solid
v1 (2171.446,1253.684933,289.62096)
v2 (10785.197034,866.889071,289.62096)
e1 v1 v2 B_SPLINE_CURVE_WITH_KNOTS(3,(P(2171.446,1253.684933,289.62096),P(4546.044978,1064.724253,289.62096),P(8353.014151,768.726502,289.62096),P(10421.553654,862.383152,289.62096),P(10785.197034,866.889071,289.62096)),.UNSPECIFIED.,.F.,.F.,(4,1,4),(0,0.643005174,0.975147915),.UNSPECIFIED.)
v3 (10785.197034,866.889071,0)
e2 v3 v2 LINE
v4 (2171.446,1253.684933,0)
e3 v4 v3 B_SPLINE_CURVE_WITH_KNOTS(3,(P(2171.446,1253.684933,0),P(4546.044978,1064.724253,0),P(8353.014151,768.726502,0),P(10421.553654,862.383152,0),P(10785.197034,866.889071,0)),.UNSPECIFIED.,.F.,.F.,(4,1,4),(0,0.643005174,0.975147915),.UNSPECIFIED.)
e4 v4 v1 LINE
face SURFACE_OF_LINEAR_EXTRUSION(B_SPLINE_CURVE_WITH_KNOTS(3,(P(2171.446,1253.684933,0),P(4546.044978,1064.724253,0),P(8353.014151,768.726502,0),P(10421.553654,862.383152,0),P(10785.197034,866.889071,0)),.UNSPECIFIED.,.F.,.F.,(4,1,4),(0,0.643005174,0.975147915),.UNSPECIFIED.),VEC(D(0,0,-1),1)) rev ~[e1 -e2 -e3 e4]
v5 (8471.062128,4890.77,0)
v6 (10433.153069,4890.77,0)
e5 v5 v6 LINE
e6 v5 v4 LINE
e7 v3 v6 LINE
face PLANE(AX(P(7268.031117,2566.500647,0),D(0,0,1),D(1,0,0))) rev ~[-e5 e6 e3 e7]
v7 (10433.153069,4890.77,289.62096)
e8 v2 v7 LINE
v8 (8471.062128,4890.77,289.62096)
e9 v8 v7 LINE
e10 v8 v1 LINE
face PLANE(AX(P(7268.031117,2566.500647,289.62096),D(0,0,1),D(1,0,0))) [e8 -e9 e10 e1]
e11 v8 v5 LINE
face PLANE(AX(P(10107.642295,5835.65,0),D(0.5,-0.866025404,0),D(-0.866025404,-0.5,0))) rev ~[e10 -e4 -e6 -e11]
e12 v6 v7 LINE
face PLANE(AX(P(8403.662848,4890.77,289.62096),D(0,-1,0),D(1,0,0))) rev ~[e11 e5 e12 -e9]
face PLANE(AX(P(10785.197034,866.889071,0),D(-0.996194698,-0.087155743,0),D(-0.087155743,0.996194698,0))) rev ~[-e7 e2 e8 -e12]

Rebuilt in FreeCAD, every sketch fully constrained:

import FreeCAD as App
import Part
import Sketcher

V = App.Vector
Q = App.Units.Quantity

doc = App.newDocument("Part")
body = doc.addObject("PartDesign::Body", "Body")

# Sketch on XY plane
sketch1 = body.newObject("Sketcher::SketchObject", "Sketch")
sketch1.AttachmentSupport = (doc.getObject("XY_Plane"), [""])
sketch1.MapMode = "FlatFace"
sketch1.addGeometry(Part.LineSegment(V(10107.642295, 5835.65, 0), V(2171.446, 1253.684933, 0)), False)
sketch1.addGeometry(Part.BSplineCurve([V(2171.446, 1253.684933, 0), V(4546.044978, 1064.724253, 0), V(8353.014151, 768.726502, 0), V(10421.553654, 862.383152, 0), V(10785.197034, 866.889071, 0)], [4, 1, 4], [0, 0.643005174, 0.975147915], False, 3, [1, 1, 1, 1, 1], False), False)
sketch1.addGeometry(Part.LineSegment(V(10785.197034, 866.889071, 0), V(10350.486781, 5835.65, 0)), False)
sketch1.addGeometry(Part.LineSegment(V(10350.486781, 5835.65, 0), V(10107.642295, 5835.65, 0)), False)
sketch1.addConstraint(Sketcher.Constraint("Block", 1))
sketch1.addConstraint(Sketcher.Constraint("Coincident", 0, 2, 1, 1))
sketch1.addConstraint(Sketcher.Constraint("Coincident", 1, 2, 2, 1))
sketch1.addConstraint(Sketcher.Constraint("Coincident", 2, 2, 3, 1))
sketch1.addConstraint(Sketcher.Constraint("Coincident", 3, 2, 0, 1))
sketch1.addConstraint(Sketcher.Constraint("Horizontal", 3))
sketch1.addConstraint(Sketcher.Constraint("Angle", 0, Q("-150 deg")))
sketch1.addConstraint(Sketcher.Constraint("Angle", 2, Q("95 deg")))
sketch1.addConstraint(Sketcher.Constraint("DistanceY", -1, 1, 2, 2, Q("229.75 in")))
pad1 = body.newObject("PartDesign::Pad", "Pad")
pad1.Profile = sketch1
pad1.Length = Q("11.4024 in")

# Sketch on XY plane
sketch2 = body.newObject("Sketcher::SketchObject", "Sketch001")
sketch2.AttachmentSupport = (doc.getObject("XY_Plane"), [""])
sketch2.MapMode = "FlatFace"
sketch2.AttachmentOffset = App.Placement(V(0, 0, 11.4024 * 25.4), App.Rotation())
sketch2.addGeometry(Part.LineSegment(V(8404, 5836, 0), V(8404, 4891, 0)), False)
sketch2.addGeometry(Part.LineSegment(V(8404, 4891, 0), V(11013, 4891, 0)), False)
sketch2.addGeometry(Part.LineSegment(V(11013, 4891, 0), V(11013, 5836, 0)), False)
sketch2.addGeometry(Part.LineSegment(V(11013, 5836, 0), V(8404, 5836, 0)), False)
sketch2.addConstraint(Sketcher.Constraint("Coincident", 0, 2, 1, 1))
sketch2.addConstraint(Sketcher.Constraint("Coincident", 1, 2, 2, 1))
sketch2.addConstraint(Sketcher.Constraint("Coincident", 2, 2, 3, 1))
sketch2.addConstraint(Sketcher.Constraint("Coincident", 3, 2, 0, 1))
sketch2.addConstraint(Sketcher.Constraint("Vertical", 0))
sketch2.addConstraint(Sketcher.Constraint("Horizontal", 1))
sketch2.addConstraint(Sketcher.Constraint("Vertical", 2))
sketch2.addConstraint(Sketcher.Constraint("Horizontal", 3))
sketch2.addConstraint(Sketcher.Constraint("DistanceY", 0, 2, 0, 1, Q("37.2 in")))
sketch2.addConstraint(Sketcher.Constraint("DistanceY", -1, 1, 0, 2, Q("192.55 in")))
sketch2.addConstraint(Sketcher.Constraint("DistanceX", 1, 1, 1, 2, Q("102.7227 in")))
sketch2.addConstraint(Sketcher.Constraint("DistanceX", -1, 1, 0, 2, Q("8403.662848 mm")))
pocket1 = body.newObject("PartDesign::Pocket", "Pocket")
pocket1.Profile = sketch2
pocket1.Type = "ThroughAll"

doc.recompute()
